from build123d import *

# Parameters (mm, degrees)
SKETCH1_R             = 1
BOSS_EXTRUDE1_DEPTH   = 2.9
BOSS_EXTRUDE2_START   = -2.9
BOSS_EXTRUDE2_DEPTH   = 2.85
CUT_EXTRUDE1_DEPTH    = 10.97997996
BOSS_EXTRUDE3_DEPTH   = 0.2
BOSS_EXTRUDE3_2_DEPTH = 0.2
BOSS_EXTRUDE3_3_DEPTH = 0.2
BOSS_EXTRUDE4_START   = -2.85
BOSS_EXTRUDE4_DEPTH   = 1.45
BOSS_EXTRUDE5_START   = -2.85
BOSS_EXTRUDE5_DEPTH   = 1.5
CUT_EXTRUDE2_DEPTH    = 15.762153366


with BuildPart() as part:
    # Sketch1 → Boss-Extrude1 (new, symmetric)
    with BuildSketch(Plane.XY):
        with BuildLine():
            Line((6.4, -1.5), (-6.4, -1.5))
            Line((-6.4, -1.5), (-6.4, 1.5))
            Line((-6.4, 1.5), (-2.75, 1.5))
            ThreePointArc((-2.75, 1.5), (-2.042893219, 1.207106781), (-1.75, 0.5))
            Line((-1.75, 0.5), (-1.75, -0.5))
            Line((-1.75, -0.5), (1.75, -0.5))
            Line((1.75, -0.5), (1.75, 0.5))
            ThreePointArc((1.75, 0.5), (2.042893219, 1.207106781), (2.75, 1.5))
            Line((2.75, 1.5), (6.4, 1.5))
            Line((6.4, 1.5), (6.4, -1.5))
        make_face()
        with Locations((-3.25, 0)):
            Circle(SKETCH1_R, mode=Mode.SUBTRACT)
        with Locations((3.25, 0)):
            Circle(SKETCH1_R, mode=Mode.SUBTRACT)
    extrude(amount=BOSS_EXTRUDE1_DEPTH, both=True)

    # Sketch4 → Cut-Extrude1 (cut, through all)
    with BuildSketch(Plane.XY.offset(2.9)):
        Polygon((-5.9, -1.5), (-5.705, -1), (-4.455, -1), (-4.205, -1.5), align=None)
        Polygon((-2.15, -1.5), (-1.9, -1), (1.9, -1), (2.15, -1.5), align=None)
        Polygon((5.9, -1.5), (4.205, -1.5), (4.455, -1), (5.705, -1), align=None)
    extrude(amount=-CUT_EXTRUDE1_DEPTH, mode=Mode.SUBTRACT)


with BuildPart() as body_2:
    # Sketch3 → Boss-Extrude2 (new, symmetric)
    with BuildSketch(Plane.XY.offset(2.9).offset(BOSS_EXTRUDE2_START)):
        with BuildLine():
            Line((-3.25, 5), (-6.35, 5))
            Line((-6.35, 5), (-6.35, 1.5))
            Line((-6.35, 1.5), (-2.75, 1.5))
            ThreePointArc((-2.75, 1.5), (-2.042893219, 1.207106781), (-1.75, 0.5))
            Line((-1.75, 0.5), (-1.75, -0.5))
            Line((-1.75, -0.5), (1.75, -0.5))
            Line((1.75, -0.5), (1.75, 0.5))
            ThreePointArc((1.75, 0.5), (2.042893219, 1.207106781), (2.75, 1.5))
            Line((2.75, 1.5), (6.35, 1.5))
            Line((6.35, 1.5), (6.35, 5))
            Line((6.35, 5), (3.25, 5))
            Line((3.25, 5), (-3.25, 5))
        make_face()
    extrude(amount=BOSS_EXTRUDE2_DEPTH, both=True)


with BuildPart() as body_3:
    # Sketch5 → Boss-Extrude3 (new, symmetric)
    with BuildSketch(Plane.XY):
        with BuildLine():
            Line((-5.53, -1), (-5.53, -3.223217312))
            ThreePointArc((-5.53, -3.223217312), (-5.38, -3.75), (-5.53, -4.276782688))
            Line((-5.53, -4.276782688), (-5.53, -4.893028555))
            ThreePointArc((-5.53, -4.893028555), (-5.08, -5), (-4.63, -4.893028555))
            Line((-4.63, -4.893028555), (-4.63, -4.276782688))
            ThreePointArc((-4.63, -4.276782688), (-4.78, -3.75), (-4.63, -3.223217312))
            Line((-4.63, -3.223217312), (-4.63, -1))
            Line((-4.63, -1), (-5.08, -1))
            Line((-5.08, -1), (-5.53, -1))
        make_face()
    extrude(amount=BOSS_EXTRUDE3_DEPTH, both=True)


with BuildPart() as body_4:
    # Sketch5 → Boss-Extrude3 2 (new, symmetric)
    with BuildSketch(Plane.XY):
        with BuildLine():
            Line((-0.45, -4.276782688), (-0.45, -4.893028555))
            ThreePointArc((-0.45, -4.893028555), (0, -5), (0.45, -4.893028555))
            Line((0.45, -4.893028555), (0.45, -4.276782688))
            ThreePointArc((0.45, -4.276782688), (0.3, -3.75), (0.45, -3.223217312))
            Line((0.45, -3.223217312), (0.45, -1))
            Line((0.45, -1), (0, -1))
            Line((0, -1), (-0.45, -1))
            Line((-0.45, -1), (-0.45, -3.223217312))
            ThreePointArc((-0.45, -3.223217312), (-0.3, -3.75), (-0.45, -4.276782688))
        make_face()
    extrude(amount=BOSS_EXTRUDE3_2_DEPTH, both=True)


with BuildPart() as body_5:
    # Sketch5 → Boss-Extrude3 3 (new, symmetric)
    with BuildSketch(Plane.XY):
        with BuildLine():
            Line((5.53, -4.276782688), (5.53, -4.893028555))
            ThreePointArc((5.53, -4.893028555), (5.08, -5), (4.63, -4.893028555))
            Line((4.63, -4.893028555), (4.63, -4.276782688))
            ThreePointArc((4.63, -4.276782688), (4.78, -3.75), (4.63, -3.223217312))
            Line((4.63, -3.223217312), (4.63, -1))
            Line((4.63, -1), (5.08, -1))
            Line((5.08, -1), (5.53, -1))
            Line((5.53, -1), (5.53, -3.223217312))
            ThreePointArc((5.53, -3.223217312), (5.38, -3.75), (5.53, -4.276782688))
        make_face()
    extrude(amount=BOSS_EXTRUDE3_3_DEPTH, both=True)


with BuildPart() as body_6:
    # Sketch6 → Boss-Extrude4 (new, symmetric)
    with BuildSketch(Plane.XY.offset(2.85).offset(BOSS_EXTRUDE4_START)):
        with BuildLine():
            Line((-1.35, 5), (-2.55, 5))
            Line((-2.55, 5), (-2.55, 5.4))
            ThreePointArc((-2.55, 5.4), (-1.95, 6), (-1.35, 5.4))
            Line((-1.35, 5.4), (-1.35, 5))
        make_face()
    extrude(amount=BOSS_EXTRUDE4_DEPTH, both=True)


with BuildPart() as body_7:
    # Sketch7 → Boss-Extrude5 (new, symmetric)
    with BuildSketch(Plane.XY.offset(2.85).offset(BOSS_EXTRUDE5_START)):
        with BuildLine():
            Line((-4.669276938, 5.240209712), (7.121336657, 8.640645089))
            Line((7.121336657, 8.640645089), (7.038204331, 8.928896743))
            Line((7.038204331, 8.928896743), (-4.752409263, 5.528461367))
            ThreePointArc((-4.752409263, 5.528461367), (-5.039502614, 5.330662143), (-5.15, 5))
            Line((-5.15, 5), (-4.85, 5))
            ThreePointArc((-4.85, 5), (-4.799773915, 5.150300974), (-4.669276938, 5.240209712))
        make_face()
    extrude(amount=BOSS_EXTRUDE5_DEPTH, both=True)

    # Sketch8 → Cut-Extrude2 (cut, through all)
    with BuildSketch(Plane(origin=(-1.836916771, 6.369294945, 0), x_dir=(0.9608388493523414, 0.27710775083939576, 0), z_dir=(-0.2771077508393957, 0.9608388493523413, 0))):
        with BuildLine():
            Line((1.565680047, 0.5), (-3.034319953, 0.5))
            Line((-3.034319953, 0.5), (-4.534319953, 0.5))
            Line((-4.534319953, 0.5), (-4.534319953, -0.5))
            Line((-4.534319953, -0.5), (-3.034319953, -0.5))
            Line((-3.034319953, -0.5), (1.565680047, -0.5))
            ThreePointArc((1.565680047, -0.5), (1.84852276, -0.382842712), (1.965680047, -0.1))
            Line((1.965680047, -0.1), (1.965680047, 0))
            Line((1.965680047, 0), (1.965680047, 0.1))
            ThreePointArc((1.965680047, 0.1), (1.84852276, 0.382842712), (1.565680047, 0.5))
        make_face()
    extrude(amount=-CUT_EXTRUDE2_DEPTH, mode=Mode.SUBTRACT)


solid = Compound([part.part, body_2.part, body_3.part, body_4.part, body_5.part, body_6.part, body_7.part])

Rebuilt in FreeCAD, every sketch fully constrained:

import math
import FreeCAD as App
import Part
import Sketcher

V = App.Vector


def add_polygon(sketch, points):
    """Adds a closed chain of lines whose ends are joined by coincident constraints."""
    first, n = sketch.GeometryCount, len(points)
    for a, b in zip(points, points[1:] + points[:1]):
        sketch.addGeometry(Part.LineSegment(App.Vector(*a, 0), App.Vector(*b, 0)), False)
    for i in range(n):
        sketch.addConstraint(Sketcher.Constraint("Coincident", first + i, 2, first + (i + 1) % n, 1))

doc = App.newDocument("Part")
body = doc.addObject("PartDesign::Body", "Body")

# Sketch on XY plane
sketch1 = body.newObject("Sketcher::SketchObject", "Sketch")
sketch1.AttachmentSupport = (doc.getObject("XY_Plane"), [""])
sketch1.MapMode = "FlatFace"
sketch1.addGeometry([
    Part.LineSegment(V(-6.4, -1.5, 0), V(6.4, -1.5, 0)),  # 0
    Part.LineSegment(V(6.4, -1.5, 0), V(6.4, 1.5, 0)),  # 1
    Part.LineSegment(V(6.4, 1.5, 0), V(2.75, 1.5, 0)),  # 2
    Part.ArcOfCircle(Part.Circle(V(2.75, 0.5, 0), V(0, 0, 1), 1), math.radians(90), math.radians(180)),  # 3
    Part.LineSegment(V(1.75, 0.5, 0), V(1.75, -0.5, 0)),  # 4
    Part.LineSegment(V(1.75, -0.5, 0), V(-1.75, -0.5, 0)),  # 5
    Part.LineSegment(V(-1.75, -0.5, 0), V(-1.75, 0.5, 0)),  # 6
    Part.ArcOfCircle(Part.Circle(V(-2.75, 0.5, 0), V(0, 0, 1), 1), math.radians(0), math.radians(90)),  # 7
    Part.LineSegment(V(-2.75, 1.5, 0), V(-6.4, 1.5, 0)),  # 8
    Part.LineSegment(V(-6.4, 1.5, 0), V(-6.4, -1.5, 0)),  # 9
    Part.Circle(V(3.25, 0, 0), V(0, 0, 1), 1),  # 10
    Part.Circle(V(-3.25, 0, 0), V(0, 0, 1), 1),  # 11
], False)
sketch1.addConstraint([
    Sketcher.Constraint("Coincident", 0, 2, 1, 1),
    Sketcher.Constraint("Coincident", 1, 2, 2, 1),
    Sketcher.Constraint("Tangent", 2, 2, 3, 1),
    Sketcher.Constraint("Tangent", 3, 2, 4, 1),
    Sketcher.Constraint("Coincident", 4, 2, 5, 1),
    Sketcher.Constraint("Coincident", 5, 2, 6, 1),
    Sketcher.Constraint("Tangent", 6, 2, 7, 1),
    Sketcher.Constraint("Tangent", 7, 2, 8, 1),
    Sketcher.Constraint("Coincident", 8, 2, 9, 1),
    Sketcher.Constraint("Coincident", 9, 2, 0, 1),
    Sketcher.Constraint("Horizontal", 0),
    Sketcher.Constraint("Vertical", 1),
    Sketcher.Constraint("Horizontal", 2),
    Sketcher.Constraint("Vertical", 4),
    Sketcher.Constraint("Horizontal", 5),
    Sketcher.Constraint("Vertical", 6),
    Sketcher.Constraint("Horizontal", 8),
    Sketcher.Constraint("Vertical", 9),
    Sketcher.Constraint("Equal", 3, 7),
    Sketcher.Constraint("Equal", 7, 10),
    Sketcher.Constraint("Equal", 10, 11),
    Sketcher.Constraint("Symmetric", 10, 3, 11, 3, -1, 1),
    Sketcher.Constraint("Symmetric", 3, 2, 5, 2, -1, 1),
    Sketcher.Constraint("Symmetric", 0, 2, 8, 2, -1, 1),
    Sketcher.Constraint("PointOnObject", 10, 3, -1),
    Sketcher.Constraint("Horizontal", 3, 3, 7, 3),
    Sketcher.Constraint("Diameter", 10, 2.0),
    Sketcher.Constraint("DistanceY", 1, 1, 1, 2, 3.0),
    Sketcher.Constraint("DistanceX", 0, 1, 0, 2, 12.8),
    Sketcher.Constraint("DistanceX", 5, 2, 5, 1, 3.5),
    Sketcher.Constraint("DistanceX", 7, 3, 10, 3, 6.0),
])
pad1 = body.newObject("PartDesign::Pad", "Pad")
pad1.Profile = sketch1
pad1.Length = 5.8
pad1.Midplane = True

# Sketch on XY plane
sketch2 = body.newObject("Sketcher::SketchObject", "Sketch001")
sketch2.AttachmentSupport = (doc.getObject("XY_Plane"), [""])
sketch2.MapMode = "FlatFace"
sketch2.AttachmentOffset = App.Placement(V(0, 0, 2.9), App.Rotation())
add_polygon(sketch2, [(-5.705, -1), (-5.9, -1.5), (-4.205, -1.5), (-4.455, -1)])  # lines 0-3
add_polygon(sketch2, [(-1.9, -1), (-2.15, -1.5), (2.15, -1.5), (1.9, -1)])  # lines 4-7
add_polygon(sketch2, [(4.205, -1.5), (5.9, -1.5), (5.705, -1), (4.455, -1)])  # lines 8-11
sketch2.addConstraint([
    Sketcher.Constraint("Horizontal", 1),
    Sketcher.Constraint("Horizontal", 3),
    Sketcher.Constraint("Horizontal", 5),
    Sketcher.Constraint("Horizontal", 7),
    Sketcher.Constraint("Horizontal", 8),
    Sketcher.Constraint("Horizontal", 10),
    Sketcher.Constraint("Symmetric", 0, 2, 8, 2, -2),
    Sketcher.Constraint("Symmetric", 3, 2, 9, 2, -2),
    Sketcher.Constraint("Parallel", 2, 6),
    Sketcher.Constraint("Parallel", 4, 11),
    Sketcher.Constraint("Horizontal", 1, 2, 4, 2),
    Sketcher.Constraint("Horizontal", 3, 2, 6, 2),
    Sketcher.Constraint("Equal", 1, 8),
    Sketcher.Constraint("Equal", 3, 10),
    Sketcher.Constraint("DistanceX", 5, 1, 5, 2, 4.3),
    Sketcher.Constraint("DistanceX", 7, 2, 7, 1, 3.8),
    Sketcher.Constraint("DistanceY", 2, 2, -1, 1, 1.0),
    Sketcher.Constraint("DistanceX", 6, 2, 8, 2, 4.0),
    Sketcher.Constraint("DistanceX", 3, 2, 3, 1, 1.25),
    Sketcher.Constraint("DistanceX", 0, 2, -1, 1, 5.9),
    Sketcher.Constraint("DistanceY", 0, 2, -1, 1, 1.5),
    Sketcher.Constraint("DistanceX", 1, 1, 1, 2, 1.695),
])
pocket1 = body.newObject("PartDesign::Pocket", "Pocket")
pocket1.Profile = sketch2
pocket1.Type = "ThroughAll"
body2 = doc.addObject("PartDesign::Body", "Body001")

# Sketch on XY plane
sketch3 = body2.newObject("Sketcher::SketchObject", "Sketch002")
sketch3.AttachmentSupport = (doc.getObject("XY_Plane001"), [""])
sketch3.MapMode = "FlatFace"
sketch3.addGeometry([
    Part.LineSegment(V(-6.35, 5, 0), V(-6.35, 1.5, 0)),  # 0
    Part.LineSegment(V(-6.35, 1.5, 0), V(-2.75, 1.5, 0)),  # 1
    Part.ArcOfCircle(Part.Circle(V(-2.75, 0.5, 0), V(0, 0, 1), 1), math.radians(0), math.radians(90)),  # 2
    Part.LineSegment(V(-1.75, 0.5, 0), V(-1.75, -0.5, 0)),  # 3
    Part.LineSegment(V(-1.75, -0.5, 0), V(1.75, -0.5, 0)),  # 4
    Part.LineSegment(V(1.75, -0.5, 0), V(1.75, 0.5, 0)),  # 5
    Part.ArcOfCircle(Part.Circle(V(2.75, 0.5, 0), V(0, 0, 1), 1), math.radians(90), math.radians(180)),  # 6
    Part.LineSegment(V(2.75, 1.5, 0), V(6.35, 1.5, 0)),  # 7
    Part.LineSegment(V(6.35, 1.5, 0), V(6.35, 5, 0)),  # 8
    Part.LineSegment(V(6.35, 5, 0), V(-6.35, 5, 0)),  # 9
], False)
sketch3.addConstraint([
    Sketcher.Constraint("Coincident", 0, 2, 1, 1),
    Sketcher.Constraint("Tangent", 1, 2, 2, 2),
    Sketcher.Constraint("Tangent", 2, 1, 3, 1),
    Sketcher.Constraint("Coincident", 3, 2, 4, 1),
    Sketcher.Constraint("Coincident", 4, 2, 5, 1),
    Sketcher.Constraint("Tangent", 5, 2, 6, 2),
    Sketcher.Constraint("Tangent", 6, 1, 7, 1),
    Sketcher.Constraint("Coincident", 7, 2, 8, 1),
    Sketcher.Constraint("Coincident", 8, 2, 9, 1),
    Sketcher.Constraint("Coincident", 9, 2, 0, 1),
    Sketcher.Constraint("Vertical", 0),
    Sketcher.Constraint("Horizontal", 1),
    Sketcher.Constraint("Vertical", 3),
    Sketcher.Constraint("Horizontal", 4),
    Sketcher.Constraint("Vertical", 5),
    Sketcher.Constraint("Horizontal", 7),
    Sketcher.Constraint("Vertical", 8),
    Sketcher.Constraint("Horizontal", 9),
    Sketcher.Constraint("Equal", 2, 6),
    Sketcher.Constraint("Symmetric", 2, 1, 4, 2, -1, 1),
    Sketcher.Constraint("Symmetric", 0, 2, 7, 2, -2),
    Sketcher.Constraint("Equal", 4, 0),
    Sketcher.Constraint("Radius", 2, 1.0),
    Sketcher.Constraint("DistanceY", 3, 2, 3, 1, 1.0),
    Sketcher.Constraint("DistanceX", 1, 1, 1, 2, 3.6),
    Sketcher.Constraint("DistanceX", 4, 1, 4, 2, 3.5),
])
pad2 = body2.newObject("PartDesign::Pad", "Pad001")
pad2.Profile = sketch3
pad2.Length = 5.7
pad2.Midplane = True
body3 = doc.addObject("PartDesign::Body", "Body002")

# Sketch on XY plane
sketch4 = body3.newObject("Sketcher::SketchObject", "Sketch003")
sketch4.AttachmentSupport = (doc.getObject("XY_Plane002"), [""])
sketch4.MapMode = "FlatFace"
sketch4.addGeometry([
    Part.LineSegment(V(-5.53, -1, 0), V(-5.53, -3.223217, 0)),  # 0
    Part.ArcOfCircle(Part.Circle(V(-6.38, -3.75, 0), V(0, 0, 1), 1), math.radians(-31.788331), math.radians(31.788331)),  # 1
    Part.LineSegment(V(-5.53, -4.276783, 0), V(-5.53, -4.893029, 0)),  # 2
    Part.ArcOfCircle(Part.Circle(V(-5.08, -4, 0), V(0, 0, 1), 1), math.radians(-116.743684), math.radians(-63.256316)),  # 3
    Part.LineSegment(V(-4.63, -4.893029, 0), V(-4.63, -4.276783, 0)),  # 4
    Part.ArcOfCircle(Part.Circle(V(-3.78, -3.75, 0), V(0, 0, 1), 1), math.radians(148.211669), math.radians(211.788331)),  # 5
    Part.LineSegment(V(-4.63, -3.223217, 0), V(-4.63, -1, 0)),  # 6
    Part.LineSegment(V(-4.63, -1, 0), V(-5.53, -1, 0)),  # 7
], False)
sketch4.addConstraint([
    Sketcher.Constraint("Coincident", 0, 2, 1, 2),
    Sketcher.Constraint("Coincident", 1, 1, 2, 1),
    Sketcher.Constraint("Coincident", 2, 2, 3, 1),
    Sketcher.Constraint("Coincident", 3, 2, 4, 1),
    Sketcher.Constraint("Coincident", 4, 2, 5, 2),
    Sketcher.Constraint("Coincident", 5, 1, 6, 1),
    Sketcher.Constraint("Coincident", 6, 2, 7, 1),
    Sketcher.Constraint("Coincident", 7, 2, 0, 1),
    Sketcher.Constraint("Vertical", 0),
    Sketcher.Constraint("Vertical", 2),
    Sketcher.Constraint("Vertical", 4),
    Sketcher.Constraint("Vertical", 6),
    Sketcher.Constraint("Horizontal", 7),
    Sketcher.Constraint("Equal", 1, 3),
    Sketcher.Constraint("Equal", 3, 5),
    Sketcher.Constraint("Horizontal", 1, 3, 5, 3),
    Sketcher.Constraint("Horizontal", 2, 2, 3, 2),
    Sketcher.Constraint("Horizontal", 1, 1, 4, 2),
    Sketcher.Constraint("Horizontal", 0, 2, 5, 1),
    Sketcher.Constraint("Vertical", 0, 2, 1, 1),
    Sketcher.Constraint("Radius", 1, 1.0),
    Sketcher.Constraint("DistanceX", 7, 2, 7, 1, 0.9),
    Sketcher.Constraint("DistanceY", 3, 3, -1, 1, 4.0),
    Sketcher.Constraint("DistanceY", 6, 2, -1, 1, 1.0),
    Sketcher.Constraint("DistanceX", 1, 3, 3, 3, 1.3),
    Sketcher.Constraint("DistanceX", 1, 3, -1, 1, 6.38),
    Sketcher.Constraint("DistanceY", 1, 3, -1, 1, 3.75),
])
pad3 = body3.newObject("PartDesign::Pad", "Pad002")
pad3.Profile = sketch4
pad3.Length = 0.4
pad3.Midplane = True
body4 = doc.addObject("PartDesign::Body", "Body003")

# Sketch on XY plane
sketch5 = body4.newObject("Sketcher::SketchObject", "Sketch004")
sketch5.AttachmentSupport = (doc.getObject("XY_Plane003"), [""])
sketch5.MapMode = "FlatFace"
sketch5.addGeometry([
    Part.LineSegment(V(-0.45, -4.276783, 0), V(-0.45, -4.893029, 0)),  # 0
    Part.ArcOfCircle(Part.Circle(V(0, -4, 0), V(0, 0, 1), 1), math.radians(-116.743684), math.radians(-63.256316)),  # 1
    Part.LineSegment(V(0.45, -4.893029, 0), V(0.45, -4.276783, 0)),  # 2
    Part.ArcOfCircle(Part.Circle(V(1.3, -3.75, 0), V(0, 0, 1), 1), math.radians(148.211669), math.radians(211.788331)),  # 3
    Part.LineSegment(V(0.45, -3.223217, 0), V(0.45, -1, 0)),  # 4
    Part.LineSegment(V(0.45, -1, 0), V(-0.45, -1, 0)),  # 5
    Part.LineSegment(V(-0.45, -1, 0), V(-0.45, -3.223217, 0)),  # 6
    Part.ArcOfCircle(Part.Circle(V(-1.3, -3.75, 0), V(0, 0, 1), 1), math.radians(-31.788331), math.radians(31.788331)),  # 7
], False)
sketch5.addConstraint([
    Sketcher.Constraint("Coincident", 0, 2, 1, 1),
    Sketcher.Constraint("Coincident", 1, 2, 2, 1),
    Sketcher.Constraint("Coincident", 2, 2, 3, 2),
    Sketcher.Constraint("Coincident", 3, 1, 4, 1),
    Sketcher.Constraint("Coincident", 4, 2, 5, 1),
    Sketcher.Constraint("Coincident", 5, 2, 6, 1),
    Sketcher.Constraint("Coincident", 6, 2, 7, 2),
    Sketcher.Constraint("Coincident", 7, 1, 0, 1),
    Sketcher.Constraint("Vertical", 0),
    Sketcher.Constraint("Vertical", 2),
    Sketcher.Constraint("Vertical", 4),
    Sketcher.Constraint("Horizontal", 5),
    Sketcher.Constraint("Vertical", 6),
    Sketcher.Constraint("Equal", 1, 3),
    Sketcher.Constraint("Equal", 3, 7),
    Sketcher.Constraint("Symmetric", 3, 3, 7, 3, -2),
    Sketcher.Constraint("Symmetric", 0, 2, 1, 2, -2),
    Sketcher.Constraint("Horizontal", 3, 1, 6, 2),
    Sketcher.Constraint("Vertical", 2, 2, 3, 1),
    Sketcher.Constraint("Radius", 1, 1.0),
    Sketcher.Constraint("DistanceX", 5, 2, 5, 1, 0.9),
    Sketcher.Constraint("DistanceY", 1, 3, -1, 1, 4.0),
    Sketcher.Constraint("DistanceY", 4, 2, -1, 1, 1.0),
    Sketcher.Constraint("DistanceX", -1, 1, 3, 3, 1.3),
    Sketcher.Constraint("DistanceY", 3, 3, -1, 1, 3.75),
])
pad4 = body4.newObject("PartDesign::Pad", "Pad003")
pad4.Profile = sketch5
pad4.Length = 0.4
pad4.Midplane = True
body5 = doc.addObject("PartDesign::Body", "Body004")

# Sketch on XY plane
sketch6 = body5.newObject("Sketcher::SketchObject", "Sketch005")
sketch6.AttachmentSupport = (doc.getObject("XY_Plane004"), [""])
sketch6.MapMode = "FlatFace"
sketch6.addGeometry([
    Part.LineSegment(V(5.53, -4.893029, 0), V(5.53, -4.276783, 0)),  # 0
    Part.ArcOfCircle(Part.Circle(V(6.38, -3.75, 0), V(0, 0, 1), 1), math.radians(148.211669), math.radians(211.788331)),  # 1
    Part.LineSegment(V(5.53, -3.223217, 0), V(5.53, -1, 0)),  # 2
    Part.LineSegment(V(5.53, -1, 0), V(4.63, -1, 0)),  # 3
    Part.LineSegment(V(4.63, -1, 0), V(4.63, -3.223217, 0)),  # 4
    Part.ArcOfCircle(Part.Circle(V(3.78, -3.75, 0), V(0, 0, 1), 1), math.radians(-31.788331), math.radians(31.788331)),  # 5
    Part.LineSegment(V(4.63, -4.276783, 0), V(4.63, -4.893029, 0)),  # 6
    Part.ArcOfCircle(Part.Circle(V(5.08, -4, 0), V(0, 0, 1), 1), math.radians(-116.743684), math.radians(-63.256316)),  # 7
], False)
sketch6.addConstraint([
    Sketcher.Constraint("Coincident", 0, 2, 1, 2),
    Sketcher.Constraint("Coincident", 1, 1, 2, 1),
    Sketcher.Constraint("Coincident", 2, 2, 3, 1),
    Sketcher.Constraint("Coincident", 3, 2, 4, 1),
    Sketcher.Constraint("Coincident", 4, 2, 5, 2),
    Sketcher.Constraint("Coincident", 5, 1, 6, 1),
    Sketcher.Constraint("Coincident", 6, 2, 7, 1),
    Sketcher.Constraint("Coincident", 7, 2, 0, 1),
    Sketcher.Constraint("Vertical", 0),
    Sketcher.Constraint("Vertical", 2),
    Sketcher.Constraint("Horizontal", 3),
    Sketcher.Constraint("Vertical", 4),
    Sketcher.Constraint("Vertical", 6),
    Sketcher.Constraint("Equal", 1, 5),
    Sketcher.Constraint("Equal", 5, 7),
    Sketcher.Constraint("Horizontal", 1, 3, 5, 3),
    Sketcher.Constraint("Horizontal", 1, 1, 4, 2),
    Sketcher.Constraint("Horizontal", 0, 2, 5, 1),
    Sketcher.Constraint("Horizontal", 6, 2, 7, 2),
    Sketcher.Constraint("Vertical", 0, 2, 1, 1),
    Sketcher.Constraint("Radius", 1, 1.0),
    Sketcher.Constraint("DistanceX", 3, 2, 3, 1, 0.9),
    Sketcher.Constraint("DistanceY", 7, 3, -1, 1, 4.0),
    Sketcher.Constraint("DistanceY", 2, 2, -1, 1, 1.0),
    Sketcher.Constraint("DistanceX", 5, 3, 1, 3, 2.6),
    Sketcher.Constraint("DistanceX", -1, 1, 1, 3, 6.38),
    Sketcher.Constraint("DistanceY", 1, 3, -1, 1, 3.75),
])
pad5 = body5.newObject("PartDesign::Pad", "Pad004")
pad5.Profile = sketch6
pad5.Length = 0.4
pad5.Midplane = True
body6 = doc.addObject("PartDesign::Body", "Body005")

# Sketch on XY plane
sketch7 = body6.newObject("Sketcher::SketchObject", "Sketch006")
sketch7.AttachmentSupport = (doc.getObject("XY_Plane005"), [""])
sketch7.MapMode = "FlatFace"
sketch7.addGeometry([
    Part.LineSegment(V(-2.55, 5, 0), V(-1.35, 5, 0)),
    Part.LineSegment(V(-1.35, 5, 0), V(-1.35, 5.4, 0)),
    Part.ArcOfCircle(Part.Circle(V(-1.95, 5.4, 0), V(0, 0, 1), 0.6), math.radians(0), math.radians(180)),
    Part.LineSegment(V(-2.55, 5.4, 0), V(-2.55, 5, 0)),
], False)
sketch7.addConstraint([
    Sketcher.Constraint("Coincident", 0, 2, 1, 1),
    Sketcher.Constraint("Tangent", 1, 2, 2, 1),
    Sketcher.Constraint("Tangent", 2, 2, 3, 1),
    Sketcher.Constraint("Coincident", 3, 2, 0, 1),
    Sketcher.Constraint("Horizontal", 0),
    Sketcher.Constraint("Vertical", 1),
    Sketcher.Constraint("Vertical", 3),
    Sketcher.Constraint("Radius", 2, 0.6),
    Sketcher.Constraint("DistanceY", 1, 1, 1, 2, 0.4),
    Sketcher.Constraint("DistanceY", -1, 1, 0, 2, 5.0),
    Sketcher.Constraint("DistanceX", 2, 3, -1, 1, 1.95),
])
pad6 = body6.newObject("PartDesign::Pad", "Pad005")
pad6.Profile = sketch7
pad6.Length = 2.9
pad6.Midplane = True
body7 = doc.addObject("PartDesign::Body", "Body006")

# Sketch on XY plane
sketch8 = body7.newObject("Sketcher::SketchObject", "Sketch007")
sketch8.AttachmentSupport = (doc.getObject("XY_Plane006"), [""])
sketch8.MapMode = "FlatFace"
sketch8.addGeometry([
    Part.LineSegment(V(-4.669277, 5.24021, 0), V(7.121337, 8.640645, 0)),  # 0
    Part.LineSegment(V(7.121337, 8.640645, 0), V(7.038204, 8.928897, 0)),  # 1
    Part.LineSegment(V(7.038204, 8.928897, 0), V(-4.752409, 5.528461, 0)),  # 2
    Part.ArcOfCircle(Part.Circle(V(-4.6, 5, 0), V(0, 0, 1), 0.55), math.radians(106.087662), math.radians(180)),  # 3
    Part.LineSegment(V(-5.15, 5, 0), V(-4.85, 5, 0)),  # 4
    Part.ArcOfCircle(Part.Circle(V(-4.6, 5, 0), V(0, 0, 1), 0.25), math.radians(106.087662), math.radians(180)),  # 5
], False)
sketch8.addConstraint([
    Sketcher.Constraint("Coincident", 0, 2, 1, 1),
    Sketcher.Constraint("Coincident", 1, 2, 2, 1),
    Sketcher.Constraint("Tangent", 2, 2, 3, 1),
    Sketcher.Constraint("Coincident", 3, 2, 4, 1),
    Sketcher.Constraint("Coincident", 4, 2, 5, 2),
    Sketcher.Constraint("Tangent", 5, 1, 0, 1),
    Sketcher.Constraint("Horizontal", 4),
    Sketcher.Constraint("Coincident", 5, 3, 3, 3),
    Sketcher.Constraint("Perpendicular", 0, 1),
    Sketcher.Constraint("Perpendicular", 1, 2),
    Sketcher.Constraint("Horizontal", 5, 3, 3, 2),
    Sketcher.Constraint("Radius", 3, 0.55),
    Sketcher.Constraint("Radius", 5, 0.25),
    Sketcher.Constraint("DistanceY", -1, 1, 3, 3, 5.0),
    Sketcher.Constraint("DistanceX", 3, 3, -1, 1, 4.6),
    Sketcher.Constraint("DistanceX", 2, 2, -1, 1, 4.752409),
    Sketcher.Constraint("Distance", 0, 12.271167),
])
pad7 = body7.newObject("PartDesign::Pad", "Pad006")
pad7.Profile = sketch8
pad7.Length = 3
pad7.Midplane = True

# Sketch on an angled plane
sketch9 = body7.newObject("Sketcher::SketchObject", "Sketch008")
sketch9.Placement = App.Placement(V(-1.836917, 6.369295, 0), App.Rotation(V(0.960838849, 0.277107751, 0), V(0, 0, -0.999999999), V(-0.277107751, 0.960838849, 0), "ZXY"))
sketch9.addGeometry([
    Part.LineSegment(V(1.56568, 0.5, 0), V(-4.53432, 0.5, 0)),  # 0
    Part.LineSegment(V(-4.53432, 0.5, 0), V(-4.53432, -0.5, 0)),  # 1
    Part.LineSegment(V(-4.53432, -0.5, 0), V(1.56568, -0.5, 0)),  # 2
    Part.ArcOfCircle(Part.Circle(V(1.56568, -0.1, 0), V(0, 0, 1), 0.4), math.radians(-90), math.radians(0)),  # 3
    Part.LineSegment(V(1.96568, -0.1, 0), V(1.96568, 0.1, 0)),  # 4
    Part.ArcOfCircle(Part.Circle(V(1.56568, 0.1, 0), V(0, 0, 1), 0.4), math.radians(0), math.radians(90)),  # 5
], False)
sketch9.addConstraint([
    Sketcher.Constraint("Coincident", 0, 2, 1, 1),
    Sketcher.Constraint("Coincident", 1, 2, 2, 1),
    Sketcher.Constraint("Tangent", 2, 2, 3, 1),
    Sketcher.Constraint("Tangent", 3, 2, 4, 1),
    Sketcher.Constraint("Tangent", 4, 2, 5, 1),
    Sketcher.Constraint("Tangent", 5, 2, 0, 1),
    Sketcher.Constraint("Horizontal", 0),
    Sketcher.Constraint("Vertical", 1),
    Sketcher.Constraint("Horizontal", 2),
    Sketcher.Constraint("Vertical", 4),
    Sketcher.Constraint("Equal", 3, 5),
    Sketcher.Constraint("Radius", 3, 0.4),
    Sketcher.Constraint("DistanceY", 1, 2, 1, 1, 1.0),
    Sketcher.Constraint("DistanceX", 0, 2, 0, 1, 6.1),
    Sketcher.Constraint("DistanceY", 3, 3, -1, 1, 0.1),
    Sketcher.Constraint("DistanceX", -1, 1, 3, 3, 1.56568),
])
pocket2 = body7.newObject("PartDesign::Pocket", "Pocket001")
pocket2.Profile = sketch9
pocket2.Type = "ThroughAll"

doc.recompute()
